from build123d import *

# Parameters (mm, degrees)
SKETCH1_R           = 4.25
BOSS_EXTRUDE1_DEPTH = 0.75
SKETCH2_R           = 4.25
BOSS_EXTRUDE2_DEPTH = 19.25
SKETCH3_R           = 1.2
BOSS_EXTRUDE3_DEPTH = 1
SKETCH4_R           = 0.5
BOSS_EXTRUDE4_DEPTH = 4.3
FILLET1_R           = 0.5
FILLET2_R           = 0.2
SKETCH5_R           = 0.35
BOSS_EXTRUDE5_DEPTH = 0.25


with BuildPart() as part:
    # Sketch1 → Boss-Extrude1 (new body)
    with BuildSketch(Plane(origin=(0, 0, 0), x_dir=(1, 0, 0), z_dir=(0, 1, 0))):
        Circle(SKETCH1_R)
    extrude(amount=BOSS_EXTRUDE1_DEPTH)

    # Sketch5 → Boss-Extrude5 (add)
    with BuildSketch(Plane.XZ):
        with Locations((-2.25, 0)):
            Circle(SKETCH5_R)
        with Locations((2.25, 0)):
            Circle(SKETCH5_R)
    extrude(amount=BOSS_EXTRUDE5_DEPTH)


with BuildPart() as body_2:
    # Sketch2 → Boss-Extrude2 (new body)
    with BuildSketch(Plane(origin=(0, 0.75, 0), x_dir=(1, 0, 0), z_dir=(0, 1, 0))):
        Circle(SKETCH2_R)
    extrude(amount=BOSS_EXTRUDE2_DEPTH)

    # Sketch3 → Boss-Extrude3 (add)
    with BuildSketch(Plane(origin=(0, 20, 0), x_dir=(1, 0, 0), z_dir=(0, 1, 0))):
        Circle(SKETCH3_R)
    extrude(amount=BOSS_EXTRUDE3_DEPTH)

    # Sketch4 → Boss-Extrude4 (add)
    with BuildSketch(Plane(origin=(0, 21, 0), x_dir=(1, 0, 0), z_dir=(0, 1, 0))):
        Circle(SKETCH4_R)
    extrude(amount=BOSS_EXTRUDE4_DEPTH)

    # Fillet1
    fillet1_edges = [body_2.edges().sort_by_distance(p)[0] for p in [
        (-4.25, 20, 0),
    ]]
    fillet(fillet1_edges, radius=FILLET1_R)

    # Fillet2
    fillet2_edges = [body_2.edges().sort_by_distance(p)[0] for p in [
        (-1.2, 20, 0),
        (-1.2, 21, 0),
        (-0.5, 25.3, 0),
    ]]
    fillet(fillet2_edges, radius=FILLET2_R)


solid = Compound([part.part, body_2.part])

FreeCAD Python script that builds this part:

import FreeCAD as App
import Part
import Sketcher
from FreeCAD import Vector


def edges_at(feature, points):
    """Names of the edges that pass closest to the given points."""
    edges = feature.Shape.Edges
    near = lambda p: min(range(len(edges)), key=lambda i: edges[i].distToShape(Part.Vertex(*p))[0])
    return sorted({f"Edge{near(p) + 1}" for p in points})

doc = App.newDocument("Part")
params = doc.addObject("Spreadsheet::Sheet", "Params")
for row, (alias, value) in enumerate([
    ("sketch1_diameter", "8.5 mm"),
    ("pad1_length", "0.75 mm"),
    ("sketch2_diameter", "0.7 mm"),
    ("pad2_length", "0.25 mm"),
    ("sketch3_diameter", "8.5 mm"),
    ("pad3_length", "19.25 mm"),
    ("sketch4_diameter", "2.4 mm"),
    ("pad4_length", "1 mm"),
    ("sketch5_diameter", "1 mm"),
    ("pad5_length", "4.3 mm"),
    ("fillet_radius", "0.5 mm"),
    ("fillet2_radius", "0.2 mm"),
], start=1):
    params.set(f"A{row}", alias)
    params.set(f"B{row}", "=" + value)
    params.setAlias(f"B{row}", alias)

body = doc.addObject("PartDesign::Body", "Body")

sketch1 = doc.addObject("Sketcher::SketchObject", "Sketch")
body.addObject(sketch1)
sketch1.AttachmentSupport = (doc.XZ_Plane, [""])
sketch1.MapMode = "FlatFace"
sketch1.addGeometry(Part.Circle(Vector(0, 0, 0), Vector(0, 0, 1), 4.2), False)
sketch1.addConstraint(Sketcher.Constraint("Coincident", 0, 3, -1, 1))
sketch1.addConstraint(Sketcher.Constraint("Diameter", 0, 8.5))
sketch1.setExpression("Constraints[1]", "Params.sketch1_diameter")
pad1 = doc.addObject("PartDesign::Pad", "Pad")
body.addObject(pad1)
pad1.Profile = sketch1
pad1.setExpression("Length", "Params.pad1_length")
pad1.Reversed = True

sketch2 = doc.addObject("Sketcher::SketchObject", "Sketch001")
body.addObject(sketch2)
sketch2.AttachmentSupport = (doc.XZ_Plane, [""])
sketch2.MapMode = "FlatFace"
sketch2.addGeometry(Part.Circle(Vector(-2.25, 0, 0), Vector(0, 0, 1), 0.35), False)
sketch2.addGeometry(Part.Circle(Vector(2.25, 0, 0), Vector(0, 0, 1), 0.35), False)
sketch2.addConstraint(Sketcher.Constraint("Equal", 0, 1))
sketch2.addConstraint(Sketcher.Constraint("Symmetric", 0, 3, 1, 3, -1, 1))
sketch2.addConstraint(Sketcher.Constraint("PointOnObject", 0, 3, -1))
sketch2.addConstraint(Sketcher.Constraint("Diameter", 0, 0.7))
sketch2.addConstraint(Sketcher.Constraint("DistanceX", 0, 3, 1, 3, 4.5))
sketch2.setExpression("Constraints[3]", "Params.sketch2_diameter")
pad2 = doc.addObject("PartDesign::Pad", "Pad001")
body.addObject(pad2)
pad2.Profile = sketch2
pad2.setExpression("Length", "Params.pad2_length")
body2 = doc.addObject("PartDesign::Body", "Body001")

sketch3 = doc.addObject("Sketcher::SketchObject", "Sketch002")
body2.addObject(sketch3)
sketch3.AttachmentSupport = (doc.getObject("XZ_Plane001"), [""])
sketch3.MapMode = "FlatFace"
sketch3.AttachmentOffset = App.Placement(Vector(0, 0, -0.75), App.Rotation())
sketch3.addGeometry(Part.Circle(Vector(0, 0, 0), Vector(0, 0, 1), 4.2), False)
sketch3.addConstraint(Sketcher.Constraint("Coincident", 0, 3, -1, 1))
sketch3.addConstraint(Sketcher.Constraint("Diameter", 0, 8.5))
sketch3.setExpression("Constraints[1]", "Params.sketch3_diameter")
pad3 = doc.addObject("PartDesign::Pad", "Pad002")
body2.addObject(pad3)
pad3.Profile = sketch3
pad3.setExpression("Length", "Params.pad3_length")
pad3.Reversed = True

sketch4 = doc.addObject("Sketcher::SketchObject", "Sketch003")
body2.addObject(sketch4)
sketch4.AttachmentSupport = (doc.getObject("XZ_Plane001"), [""])
sketch4.MapMode = "FlatFace"
sketch4.AttachmentOffset = App.Placement(Vector(0, 0, -20), App.Rotation())
sketch4.addGeometry(Part.Circle(Vector(0, 0, 0), Vector(0, 0, 1), 1.2), False)
sketch4.addConstraint(Sketcher.Constraint("Coincident", 0, 3, -1, 1))
sketch4.addConstraint(Sketcher.Constraint("Diameter", 0, 2.4))
sketch4.setExpression("Constraints[1]", "Params.sketch4_diameter")
pad4 = doc.addObject("PartDesign::Pad", "Pad003")
body2.addObject(pad4)
pad4.Profile = sketch4
pad4.setExpression("Length", "Params.pad4_length")
pad4.Reversed = True

sketch5 = doc.addObject("Sketcher::SketchObject", "Sketch004")
body2.addObject(sketch5)
sketch5.AttachmentSupport = (doc.getObject("XZ_Plane001"), [""])
sketch5.MapMode = "FlatFace"
sketch5.AttachmentOffset = App.Placement(Vector(0, 0, -21), App.Rotation())
sketch5.addGeometry(Part.Circle(Vector(0, 0, 0), Vector(0, 0, 1), 0.5), False)
sketch5.addConstraint(Sketcher.Constraint("Coincident", 0, 3, -1, 1))
sketch5.addConstraint(Sketcher.Constraint("Diameter", 0, 1.0))
sketch5.setExpression("Constraints[1]", "Params.sketch5_diameter")
pad5 = doc.addObject("PartDesign::Pad", "Pad004")
body2.addObject(pad5)
pad5.Profile = sketch5
pad5.setExpression("Length", "Params.pad5_length")
pad5.Reversed = True
doc.recompute()

fillet = doc.addObject("PartDesign::Fillet", "Fillet")
body2.addObject(fillet)
fillet.Base = (pad5, edges_at(pad5, [(-4.25, 20, 0)]))
fillet.setExpression("Radius", "Params.fillet_radius")
doc.recompute()

fillet2 = doc.addObject("PartDesign::Fillet", "Fillet001")
body2.addObject(fillet2)
fillet2.Base = (fillet, edges_at(fillet, [(-1.2, 20, 0), (-1.2, 21, 0), (-0.5, 25.3, 0)]))
fillet2.setExpression("Radius", "Params.fillet2_radius")

doc.recompute()
